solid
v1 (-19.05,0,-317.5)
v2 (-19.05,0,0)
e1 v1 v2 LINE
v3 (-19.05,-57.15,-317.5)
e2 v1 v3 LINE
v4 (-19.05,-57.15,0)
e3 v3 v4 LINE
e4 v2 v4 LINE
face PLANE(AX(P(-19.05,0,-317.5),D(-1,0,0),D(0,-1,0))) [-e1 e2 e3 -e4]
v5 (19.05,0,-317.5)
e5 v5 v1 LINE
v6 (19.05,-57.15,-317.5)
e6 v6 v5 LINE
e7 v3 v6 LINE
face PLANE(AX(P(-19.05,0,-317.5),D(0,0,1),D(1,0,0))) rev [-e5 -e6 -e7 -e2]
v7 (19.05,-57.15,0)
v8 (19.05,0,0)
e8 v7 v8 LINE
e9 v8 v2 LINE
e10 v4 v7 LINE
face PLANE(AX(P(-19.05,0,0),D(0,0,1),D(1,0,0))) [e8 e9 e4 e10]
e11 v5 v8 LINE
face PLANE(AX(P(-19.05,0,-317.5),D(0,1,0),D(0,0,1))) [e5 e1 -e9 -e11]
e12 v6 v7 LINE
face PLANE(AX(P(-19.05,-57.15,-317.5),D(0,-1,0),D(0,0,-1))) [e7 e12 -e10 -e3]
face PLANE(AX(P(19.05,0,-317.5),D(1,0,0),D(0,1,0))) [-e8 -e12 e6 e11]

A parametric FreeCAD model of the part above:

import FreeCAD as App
import Part
import Sketcher
from FreeCAD import Vector
Q = App.Units.Quantity

doc = App.newDocument("Part")
body = doc.addObject("PartDesign::Body", "Body")

sketch1 = body.newObject("Sketcher::SketchObject", "Sketch")
sketch1.AttachmentSupport = (doc.getObject("XY_Plane"), [""])
sketch1.MapMode = "FlatFace"
sketch1.addGeometry(Part.LineSegment(Vector(-19, 0, 0), Vector(-19, -57, 0)), False)
sketch1.addGeometry(Part.LineSegment(Vector(-19, -57, 0), Vector(19, -57, 0)), False)
sketch1.addGeometry(Part.LineSegment(Vector(19, -57, 0), Vector(19, 0, 0)), False)
sketch1.addGeometry(Part.LineSegment(Vector(19, 0, 0), Vector(-19, 0, 0)), False)
sketch1.addConstraint(Sketcher.Constraint("Coincident", 0, 2, 1, 1))
sketch1.addConstraint(Sketcher.Constraint("Coincident", 1, 2, 2, 1))
sketch1.addConstraint(Sketcher.Constraint("Coincident", 2, 2, 3, 1))
sketch1.addConstraint(Sketcher.Constraint("Coincident", 3, 2, 0, 1))
sketch1.addConstraint(Sketcher.Constraint("Vertical", 0))
sketch1.addConstraint(Sketcher.Constraint("Horizontal", 1))
sketch1.addConstraint(Sketcher.Constraint("Vertical", 2))
sketch1.addConstraint(Sketcher.Constraint("Horizontal", 3))
sketch1.addConstraint(Sketcher.Constraint("Symmetric", 2, 2, 3, 2, -1, 1))
sketch1.addConstraint(Sketcher.Constraint("DistanceX", 1, 1, 1, 2, Q("1.5 in")))
sketch1.addConstraint(Sketcher.Constraint("DistanceY", 0, 2, 0, 1, Q("2.25 in")))
pad1 = body.newObject("PartDesign::Pad", "Pad")
pad1.Profile = sketch1
pad1.Length = Q("12.5 in")
pad1.Reversed = True

doc.recompute()
